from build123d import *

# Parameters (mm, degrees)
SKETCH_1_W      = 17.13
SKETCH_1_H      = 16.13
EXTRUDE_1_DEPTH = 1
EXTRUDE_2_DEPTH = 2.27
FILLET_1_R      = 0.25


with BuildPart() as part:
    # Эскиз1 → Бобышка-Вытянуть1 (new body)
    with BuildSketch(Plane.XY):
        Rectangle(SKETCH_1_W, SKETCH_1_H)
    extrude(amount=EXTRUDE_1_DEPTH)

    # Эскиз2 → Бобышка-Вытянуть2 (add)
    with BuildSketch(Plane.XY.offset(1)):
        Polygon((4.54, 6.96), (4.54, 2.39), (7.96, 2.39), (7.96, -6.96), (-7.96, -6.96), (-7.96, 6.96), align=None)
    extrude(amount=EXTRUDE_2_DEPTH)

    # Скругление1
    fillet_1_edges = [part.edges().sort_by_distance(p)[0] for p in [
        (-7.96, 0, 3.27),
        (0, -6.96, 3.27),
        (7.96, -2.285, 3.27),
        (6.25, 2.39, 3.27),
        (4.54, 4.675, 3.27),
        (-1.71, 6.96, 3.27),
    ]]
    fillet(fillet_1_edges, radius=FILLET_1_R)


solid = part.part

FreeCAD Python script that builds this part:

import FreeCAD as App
import Part
import Sketcher
Q = App.Units.Quantity


def edges_at(feature, points):
    """Names of the edges that pass closest to the given points."""
    edges = feature.Shape.Edges
    near = lambda p: min(range(len(edges)), key=lambda i: edges[i].distToShape(Part.Vertex(*p))[0])
    return sorted({f"Edge{near(p) + 1}" for p in points})

doc = App.newDocument("Part")
params = doc.addObject("Spreadsheet::Sheet", "Params")
for row, (alias, value) in enumerate([
    ("sketch1_width", "17.13 mm"),
    ("sketch1_height", "16.13 mm"),
    ("pad1_length", "1 mm"),
    ("sketch2_width", "12.5 mm"),
    ("sketch2_width2", "15.92 mm"),
    ("sketch2_height", "4.57 mm"),
    ("sketch2_height2", "13.92 mm"),
    ("pad2_length", "2.27 mm"),
    ("fillet_radius", "0.25 mm"),
], start=1):
    params.set(f"A{row}", alias)
    params.set(f"B{row}", "=" + value)
    params.setAlias(f"B{row}", alias)

body = doc.addObject("PartDesign::Body", "Body")

sketch1 = doc.addObject("Sketcher::SketchObject", "Sketch")
body.addObject(sketch1)
sketch1.AttachmentSupport = (doc.XY_Plane, [""])
sketch1.MapMode = "FlatFace"
sketch1.addGeometry(Part.LineSegment(App.Vector(-9, 8, 0), App.Vector(-9, -8, 0)), False)
sketch1.addGeometry(Part.LineSegment(App.Vector(-9, -8, 0), App.Vector(9, -8, 0)), False)
sketch1.addGeometry(Part.LineSegment(App.Vector(9, -8, 0), App.Vector(9, 8, 0)), False)
sketch1.addGeometry(Part.LineSegment(App.Vector(9, 8, 0), App.Vector(-9, 8, 0)), False)
sketch1.addConstraint(Sketcher.Constraint("Coincident", 0, 2, 1, 1))
sketch1.addConstraint(Sketcher.Constraint("Coincident", 1, 2, 2, 1))
sketch1.addConstraint(Sketcher.Constraint("Coincident", 2, 2, 3, 1))
sketch1.addConstraint(Sketcher.Constraint("Coincident", 3, 2, 0, 1))
sketch1.addConstraint(Sketcher.Constraint("Vertical", 0))
sketch1.addConstraint(Sketcher.Constraint("Horizontal", 1))
sketch1.addConstraint(Sketcher.Constraint("Vertical", 2))
sketch1.addConstraint(Sketcher.Constraint("Horizontal", 3))
sketch1.addConstraint(Sketcher.Constraint("Symmetric", 0, 2, 2, 2, -1, 1))
sketch1.addConstraint(Sketcher.Constraint("DistanceX", 1, 1, 1, 2, Q("17.13 mm")))
sketch1.addConstraint(Sketcher.Constraint("DistanceY", 0, 2, 0, 1, Q("16.13 mm")))
sketch1.setExpression("Constraints[9]", "Params.sketch1_width")
sketch1.setExpression("Constraints[10]", "Params.sketch1_height")
pad1 = doc.addObject("PartDesign::Pad", "Pad")
body.addObject(pad1)
pad1.Profile = sketch1
pad1.setExpression("Length", "Params.pad1_length")

sketch2 = doc.addObject("Sketcher::SketchObject", "Sketch001")
body.addObject(sketch2)
sketch2.AttachmentSupport = (doc.XY_Plane, [""])
sketch2.MapMode = "FlatFace"
sketch2.AttachmentOffset = App.Placement(App.Vector(0, 0, 1), App.Rotation())
sketch2.addGeometry(Part.LineSegment(App.Vector(4.5, 2.4, 0), App.Vector(4.5, 7, 0)), False)
sketch2.addGeometry(Part.LineSegment(App.Vector(4.5, 7, 0), App.Vector(-8, 7, 0)), False)
sketch2.addGeometry(Part.LineSegment(App.Vector(-8, 7, 0), App.Vector(-8, -7, 0)), False)
sketch2.addGeometry(Part.LineSegment(App.Vector(-8, -7, 0), App.Vector(8, -7, 0)), False)
sketch2.addGeometry(Part.LineSegment(App.Vector(8, -7, 0), App.Vector(8, 2.4, 0)), False)
sketch2.addGeometry(Part.LineSegment(App.Vector(8, 2.4, 0), App.Vector(4.5, 2.4, 0)), False)
sketch2.addConstraint(Sketcher.Constraint("Coincident", 0, 2, 1, 1))
sketch2.addConstraint(Sketcher.Constraint("Coincident", 1, 2, 2, 1))
sketch2.addConstraint(Sketcher.Constraint("Coincident", 2, 2, 3, 1))
sketch2.addConstraint(Sketcher.Constraint("Coincident", 3, 2, 4, 1))
sketch2.addConstraint(Sketcher.Constraint("Coincident", 4, 2, 5, 1))
sketch2.addConstraint(Sketcher.Constraint("Coincident", 5, 2, 0, 1))
sketch2.addConstraint(Sketcher.Constraint("Vertical", 0))
sketch2.addConstraint(Sketcher.Constraint("Horizontal", 1))
sketch2.addConstraint(Sketcher.Constraint("Vertical", 2))
sketch2.addConstraint(Sketcher.Constraint("Horizontal", 3))
sketch2.addConstraint(Sketcher.Constraint("Vertical", 4))
sketch2.addConstraint(Sketcher.Constraint("Horizontal", 5))
sketch2.addConstraint(Sketcher.Constraint("Symmetric", 1, 2, 3, 2, -1, 1))
sketch2.addConstraint(Sketcher.Constraint("DistanceX", 1, 2, 1, 1, Q("12.5 mm")))
sketch2.addConstraint(Sketcher.Constraint("DistanceX", 3, 1, 3, 2, Q("15.92 mm")))
sketch2.addConstraint(Sketcher.Constraint("DistanceY", 0, 1, 0, 2, Q("4.57 mm")))
sketch2.addConstraint(Sketcher.Constraint("DistanceY", 2, 2, 2, 1, Q("13.92 mm")))
sketch2.setExpression("Constraints[13]", "Params.sketch2_width")
sketch2.setExpression("Constraints[14]", "Params.sketch2_width2")
sketch2.setExpression("Constraints[15]", "Params.sketch2_height")
sketch2.setExpression("Constraints[16]", "Params.sketch2_height2")
pad2 = doc.addObject("PartDesign::Pad", "Pad001")
body.addObject(pad2)
pad2.Profile = sketch2
pad2.setExpression("Length", "Params.pad2_length")
doc.recompute()

fillet = doc.addObject("PartDesign::Fillet", "Fillet")
body.addObject(fillet)
fillet.Base = (pad2, edges_at(pad2, [
    (-7.96, 0, 3.27),
    (0, -6.96, 3.27),
    (7.96, -2.285, 3.27),
    (6.25, 2.39, 3.27),
    (4.54, 4.675, 3.27),
    (-1.71, 6.96, 3.27),
]))
fillet.setExpression("Radius", "Params.fillet_radius")

doc.recompute()
